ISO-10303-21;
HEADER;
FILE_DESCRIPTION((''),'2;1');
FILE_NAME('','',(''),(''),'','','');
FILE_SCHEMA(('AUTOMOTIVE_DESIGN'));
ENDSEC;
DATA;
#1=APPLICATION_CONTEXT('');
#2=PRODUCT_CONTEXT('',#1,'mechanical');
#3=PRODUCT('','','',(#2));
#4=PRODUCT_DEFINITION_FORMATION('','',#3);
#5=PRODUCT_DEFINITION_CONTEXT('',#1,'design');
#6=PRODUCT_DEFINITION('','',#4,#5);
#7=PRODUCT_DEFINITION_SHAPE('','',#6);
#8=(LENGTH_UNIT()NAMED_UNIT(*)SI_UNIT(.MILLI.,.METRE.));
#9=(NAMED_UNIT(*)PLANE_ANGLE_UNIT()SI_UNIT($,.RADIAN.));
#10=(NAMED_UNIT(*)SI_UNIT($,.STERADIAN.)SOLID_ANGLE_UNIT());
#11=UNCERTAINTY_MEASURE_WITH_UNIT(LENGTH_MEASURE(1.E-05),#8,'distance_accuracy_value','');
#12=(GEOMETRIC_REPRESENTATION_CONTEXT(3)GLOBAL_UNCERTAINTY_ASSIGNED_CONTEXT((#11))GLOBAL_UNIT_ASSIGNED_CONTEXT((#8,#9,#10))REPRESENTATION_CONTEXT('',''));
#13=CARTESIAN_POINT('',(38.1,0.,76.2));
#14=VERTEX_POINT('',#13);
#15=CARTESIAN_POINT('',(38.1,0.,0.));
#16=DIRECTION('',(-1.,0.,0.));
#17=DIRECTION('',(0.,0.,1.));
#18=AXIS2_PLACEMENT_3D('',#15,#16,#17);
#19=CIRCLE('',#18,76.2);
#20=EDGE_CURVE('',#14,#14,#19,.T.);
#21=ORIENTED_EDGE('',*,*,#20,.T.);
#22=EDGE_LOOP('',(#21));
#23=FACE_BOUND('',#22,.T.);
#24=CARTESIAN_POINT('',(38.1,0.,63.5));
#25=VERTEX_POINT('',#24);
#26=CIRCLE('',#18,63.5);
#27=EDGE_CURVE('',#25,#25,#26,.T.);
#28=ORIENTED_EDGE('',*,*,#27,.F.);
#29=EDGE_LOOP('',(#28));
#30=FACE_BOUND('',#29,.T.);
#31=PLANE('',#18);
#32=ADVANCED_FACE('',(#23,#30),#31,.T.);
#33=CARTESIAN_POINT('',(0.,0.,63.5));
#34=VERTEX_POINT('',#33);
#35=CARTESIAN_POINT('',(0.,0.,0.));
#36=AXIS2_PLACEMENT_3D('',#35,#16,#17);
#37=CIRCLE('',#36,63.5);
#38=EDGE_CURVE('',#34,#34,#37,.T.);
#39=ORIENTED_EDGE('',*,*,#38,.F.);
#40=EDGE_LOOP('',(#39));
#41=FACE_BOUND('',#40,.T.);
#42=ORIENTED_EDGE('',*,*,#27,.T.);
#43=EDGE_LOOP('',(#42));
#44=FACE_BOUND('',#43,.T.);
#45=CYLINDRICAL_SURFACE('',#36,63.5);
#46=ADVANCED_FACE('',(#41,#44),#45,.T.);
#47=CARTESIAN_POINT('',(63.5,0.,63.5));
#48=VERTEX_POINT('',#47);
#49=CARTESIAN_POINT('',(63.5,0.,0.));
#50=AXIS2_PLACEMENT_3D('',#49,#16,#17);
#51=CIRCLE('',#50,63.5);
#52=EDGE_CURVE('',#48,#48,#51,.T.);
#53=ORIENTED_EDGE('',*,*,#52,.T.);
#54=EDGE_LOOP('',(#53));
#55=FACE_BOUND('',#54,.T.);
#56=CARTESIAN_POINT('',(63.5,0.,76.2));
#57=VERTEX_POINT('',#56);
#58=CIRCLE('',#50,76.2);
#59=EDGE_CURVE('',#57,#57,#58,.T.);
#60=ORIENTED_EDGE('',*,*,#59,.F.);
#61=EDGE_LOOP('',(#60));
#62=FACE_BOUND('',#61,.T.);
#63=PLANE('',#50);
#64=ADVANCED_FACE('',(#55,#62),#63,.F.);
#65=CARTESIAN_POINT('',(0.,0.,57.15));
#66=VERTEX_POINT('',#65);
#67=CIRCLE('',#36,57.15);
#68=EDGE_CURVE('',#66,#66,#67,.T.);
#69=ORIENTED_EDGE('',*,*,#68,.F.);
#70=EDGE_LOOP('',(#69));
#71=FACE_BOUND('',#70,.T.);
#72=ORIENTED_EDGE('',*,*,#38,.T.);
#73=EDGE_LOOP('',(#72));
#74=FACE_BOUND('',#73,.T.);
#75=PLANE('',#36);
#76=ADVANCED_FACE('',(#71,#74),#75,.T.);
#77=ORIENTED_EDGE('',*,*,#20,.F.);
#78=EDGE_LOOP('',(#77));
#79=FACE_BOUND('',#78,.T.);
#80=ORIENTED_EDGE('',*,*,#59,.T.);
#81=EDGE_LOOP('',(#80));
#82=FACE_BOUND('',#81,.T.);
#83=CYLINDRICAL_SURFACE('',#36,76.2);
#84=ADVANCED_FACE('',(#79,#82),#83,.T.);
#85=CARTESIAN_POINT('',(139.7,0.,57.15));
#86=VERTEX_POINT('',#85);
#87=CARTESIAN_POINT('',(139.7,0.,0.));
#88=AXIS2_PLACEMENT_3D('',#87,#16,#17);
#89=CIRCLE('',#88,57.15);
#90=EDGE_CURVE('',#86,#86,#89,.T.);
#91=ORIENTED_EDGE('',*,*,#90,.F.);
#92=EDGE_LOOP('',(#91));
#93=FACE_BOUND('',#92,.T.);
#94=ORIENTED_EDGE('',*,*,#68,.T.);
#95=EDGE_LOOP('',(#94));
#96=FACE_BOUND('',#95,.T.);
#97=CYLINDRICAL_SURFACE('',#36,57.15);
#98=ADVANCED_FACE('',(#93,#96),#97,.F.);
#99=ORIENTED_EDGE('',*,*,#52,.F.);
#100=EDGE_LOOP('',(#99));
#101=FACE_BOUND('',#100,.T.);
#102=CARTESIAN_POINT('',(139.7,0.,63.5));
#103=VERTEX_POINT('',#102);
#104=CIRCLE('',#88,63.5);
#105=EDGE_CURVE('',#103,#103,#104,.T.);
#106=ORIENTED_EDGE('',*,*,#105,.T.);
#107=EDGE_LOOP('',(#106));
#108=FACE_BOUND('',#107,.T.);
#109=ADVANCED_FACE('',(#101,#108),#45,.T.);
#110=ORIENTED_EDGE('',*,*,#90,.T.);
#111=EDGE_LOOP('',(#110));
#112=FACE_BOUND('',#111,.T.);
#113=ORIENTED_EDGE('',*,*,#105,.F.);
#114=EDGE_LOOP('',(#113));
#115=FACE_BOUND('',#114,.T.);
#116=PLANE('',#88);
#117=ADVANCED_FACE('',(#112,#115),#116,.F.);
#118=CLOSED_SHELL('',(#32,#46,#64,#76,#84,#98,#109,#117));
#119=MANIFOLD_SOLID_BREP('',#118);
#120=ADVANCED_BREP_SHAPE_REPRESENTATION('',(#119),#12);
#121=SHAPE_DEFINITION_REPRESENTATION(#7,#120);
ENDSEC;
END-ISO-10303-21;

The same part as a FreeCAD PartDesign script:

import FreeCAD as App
import Part
import Sketcher
Q = App.Units.Quantity


def add_polygon(sketch, points):
    """Adds a closed chain of lines whose ends are joined by coincident constraints."""
    first, n = sketch.GeometryCount, len(points)
    for a, b in zip(points, points[1:] + points[:1]):
        sketch.addGeometry(Part.LineSegment(App.Vector(*a, 0), App.Vector(*b, 0)), False)
    for i in range(n):
        sketch.addConstraint(Sketcher.Constraint("Coincident", first + i, 2, first + (i + 1) % n, 1))

doc = App.newDocument("Part")
body = doc.addObject("PartDesign::Body", "Body")

sketch1 = body.newObject("Sketcher::SketchObject", "Sketch")
sketch1.AttachmentSupport = (doc.getObject("XY_Plane"), [""])
sketch1.MapMode = "FlatFace"
add_polygon(sketch1, [(0, 57), (140, 57), (140, 64), (64, 64), (64, 76), (38, 76), (38, 64), (0, 64)])
sketch1.addConstraint(Sketcher.Constraint("Horizontal", 0))
sketch1.addConstraint(Sketcher.Constraint("Vertical", 1))
sketch1.addConstraint(Sketcher.Constraint("Horizontal", 2))
sketch1.addConstraint(Sketcher.Constraint("Vertical", 3))
sketch1.addConstraint(Sketcher.Constraint("Horizontal", 4))
sketch1.addConstraint(Sketcher.Constraint("Vertical", 5))
sketch1.addConstraint(Sketcher.Constraint("Horizontal", 6))
sketch1.addConstraint(Sketcher.Constraint("Vertical", 7))
sketch1.addConstraint(Sketcher.Constraint("PointOnObject", 6, 2, -2))
sketch1.addConstraint(Sketcher.Constraint("Horizontal", 2, 2, 5, 2))
sketch1.addConstraint(Sketcher.Constraint("DistanceX", 2, 2, 2, 1, Q("3 in")))
sketch1.addConstraint(Sketcher.Constraint("DistanceX", 4, 2, 4, 1, Q("1 in")))
sketch1.addConstraint(Sketcher.Constraint("DistanceX", 0, 1, 0, 2, Q("5.5 in")))
sketch1.addConstraint(Sketcher.Constraint("DistanceY", 3, 1, 3, 2, Q("0.5 in")))
sketch1.addConstraint(Sketcher.Constraint("DistanceY", -1, 1, 3, 2, Q("3 in")))
sketch1.addConstraint(Sketcher.Constraint("DistanceY", 1, 1, 1, 2, Q("0.25 in")))
revolution = body.newObject("PartDesign::Revolution", "Revolution")
revolution.Profile = sketch1
revolution.ReferenceAxis = (sketch1, ["H_Axis"])
revolution.Angle = 360

doc.recompute()
